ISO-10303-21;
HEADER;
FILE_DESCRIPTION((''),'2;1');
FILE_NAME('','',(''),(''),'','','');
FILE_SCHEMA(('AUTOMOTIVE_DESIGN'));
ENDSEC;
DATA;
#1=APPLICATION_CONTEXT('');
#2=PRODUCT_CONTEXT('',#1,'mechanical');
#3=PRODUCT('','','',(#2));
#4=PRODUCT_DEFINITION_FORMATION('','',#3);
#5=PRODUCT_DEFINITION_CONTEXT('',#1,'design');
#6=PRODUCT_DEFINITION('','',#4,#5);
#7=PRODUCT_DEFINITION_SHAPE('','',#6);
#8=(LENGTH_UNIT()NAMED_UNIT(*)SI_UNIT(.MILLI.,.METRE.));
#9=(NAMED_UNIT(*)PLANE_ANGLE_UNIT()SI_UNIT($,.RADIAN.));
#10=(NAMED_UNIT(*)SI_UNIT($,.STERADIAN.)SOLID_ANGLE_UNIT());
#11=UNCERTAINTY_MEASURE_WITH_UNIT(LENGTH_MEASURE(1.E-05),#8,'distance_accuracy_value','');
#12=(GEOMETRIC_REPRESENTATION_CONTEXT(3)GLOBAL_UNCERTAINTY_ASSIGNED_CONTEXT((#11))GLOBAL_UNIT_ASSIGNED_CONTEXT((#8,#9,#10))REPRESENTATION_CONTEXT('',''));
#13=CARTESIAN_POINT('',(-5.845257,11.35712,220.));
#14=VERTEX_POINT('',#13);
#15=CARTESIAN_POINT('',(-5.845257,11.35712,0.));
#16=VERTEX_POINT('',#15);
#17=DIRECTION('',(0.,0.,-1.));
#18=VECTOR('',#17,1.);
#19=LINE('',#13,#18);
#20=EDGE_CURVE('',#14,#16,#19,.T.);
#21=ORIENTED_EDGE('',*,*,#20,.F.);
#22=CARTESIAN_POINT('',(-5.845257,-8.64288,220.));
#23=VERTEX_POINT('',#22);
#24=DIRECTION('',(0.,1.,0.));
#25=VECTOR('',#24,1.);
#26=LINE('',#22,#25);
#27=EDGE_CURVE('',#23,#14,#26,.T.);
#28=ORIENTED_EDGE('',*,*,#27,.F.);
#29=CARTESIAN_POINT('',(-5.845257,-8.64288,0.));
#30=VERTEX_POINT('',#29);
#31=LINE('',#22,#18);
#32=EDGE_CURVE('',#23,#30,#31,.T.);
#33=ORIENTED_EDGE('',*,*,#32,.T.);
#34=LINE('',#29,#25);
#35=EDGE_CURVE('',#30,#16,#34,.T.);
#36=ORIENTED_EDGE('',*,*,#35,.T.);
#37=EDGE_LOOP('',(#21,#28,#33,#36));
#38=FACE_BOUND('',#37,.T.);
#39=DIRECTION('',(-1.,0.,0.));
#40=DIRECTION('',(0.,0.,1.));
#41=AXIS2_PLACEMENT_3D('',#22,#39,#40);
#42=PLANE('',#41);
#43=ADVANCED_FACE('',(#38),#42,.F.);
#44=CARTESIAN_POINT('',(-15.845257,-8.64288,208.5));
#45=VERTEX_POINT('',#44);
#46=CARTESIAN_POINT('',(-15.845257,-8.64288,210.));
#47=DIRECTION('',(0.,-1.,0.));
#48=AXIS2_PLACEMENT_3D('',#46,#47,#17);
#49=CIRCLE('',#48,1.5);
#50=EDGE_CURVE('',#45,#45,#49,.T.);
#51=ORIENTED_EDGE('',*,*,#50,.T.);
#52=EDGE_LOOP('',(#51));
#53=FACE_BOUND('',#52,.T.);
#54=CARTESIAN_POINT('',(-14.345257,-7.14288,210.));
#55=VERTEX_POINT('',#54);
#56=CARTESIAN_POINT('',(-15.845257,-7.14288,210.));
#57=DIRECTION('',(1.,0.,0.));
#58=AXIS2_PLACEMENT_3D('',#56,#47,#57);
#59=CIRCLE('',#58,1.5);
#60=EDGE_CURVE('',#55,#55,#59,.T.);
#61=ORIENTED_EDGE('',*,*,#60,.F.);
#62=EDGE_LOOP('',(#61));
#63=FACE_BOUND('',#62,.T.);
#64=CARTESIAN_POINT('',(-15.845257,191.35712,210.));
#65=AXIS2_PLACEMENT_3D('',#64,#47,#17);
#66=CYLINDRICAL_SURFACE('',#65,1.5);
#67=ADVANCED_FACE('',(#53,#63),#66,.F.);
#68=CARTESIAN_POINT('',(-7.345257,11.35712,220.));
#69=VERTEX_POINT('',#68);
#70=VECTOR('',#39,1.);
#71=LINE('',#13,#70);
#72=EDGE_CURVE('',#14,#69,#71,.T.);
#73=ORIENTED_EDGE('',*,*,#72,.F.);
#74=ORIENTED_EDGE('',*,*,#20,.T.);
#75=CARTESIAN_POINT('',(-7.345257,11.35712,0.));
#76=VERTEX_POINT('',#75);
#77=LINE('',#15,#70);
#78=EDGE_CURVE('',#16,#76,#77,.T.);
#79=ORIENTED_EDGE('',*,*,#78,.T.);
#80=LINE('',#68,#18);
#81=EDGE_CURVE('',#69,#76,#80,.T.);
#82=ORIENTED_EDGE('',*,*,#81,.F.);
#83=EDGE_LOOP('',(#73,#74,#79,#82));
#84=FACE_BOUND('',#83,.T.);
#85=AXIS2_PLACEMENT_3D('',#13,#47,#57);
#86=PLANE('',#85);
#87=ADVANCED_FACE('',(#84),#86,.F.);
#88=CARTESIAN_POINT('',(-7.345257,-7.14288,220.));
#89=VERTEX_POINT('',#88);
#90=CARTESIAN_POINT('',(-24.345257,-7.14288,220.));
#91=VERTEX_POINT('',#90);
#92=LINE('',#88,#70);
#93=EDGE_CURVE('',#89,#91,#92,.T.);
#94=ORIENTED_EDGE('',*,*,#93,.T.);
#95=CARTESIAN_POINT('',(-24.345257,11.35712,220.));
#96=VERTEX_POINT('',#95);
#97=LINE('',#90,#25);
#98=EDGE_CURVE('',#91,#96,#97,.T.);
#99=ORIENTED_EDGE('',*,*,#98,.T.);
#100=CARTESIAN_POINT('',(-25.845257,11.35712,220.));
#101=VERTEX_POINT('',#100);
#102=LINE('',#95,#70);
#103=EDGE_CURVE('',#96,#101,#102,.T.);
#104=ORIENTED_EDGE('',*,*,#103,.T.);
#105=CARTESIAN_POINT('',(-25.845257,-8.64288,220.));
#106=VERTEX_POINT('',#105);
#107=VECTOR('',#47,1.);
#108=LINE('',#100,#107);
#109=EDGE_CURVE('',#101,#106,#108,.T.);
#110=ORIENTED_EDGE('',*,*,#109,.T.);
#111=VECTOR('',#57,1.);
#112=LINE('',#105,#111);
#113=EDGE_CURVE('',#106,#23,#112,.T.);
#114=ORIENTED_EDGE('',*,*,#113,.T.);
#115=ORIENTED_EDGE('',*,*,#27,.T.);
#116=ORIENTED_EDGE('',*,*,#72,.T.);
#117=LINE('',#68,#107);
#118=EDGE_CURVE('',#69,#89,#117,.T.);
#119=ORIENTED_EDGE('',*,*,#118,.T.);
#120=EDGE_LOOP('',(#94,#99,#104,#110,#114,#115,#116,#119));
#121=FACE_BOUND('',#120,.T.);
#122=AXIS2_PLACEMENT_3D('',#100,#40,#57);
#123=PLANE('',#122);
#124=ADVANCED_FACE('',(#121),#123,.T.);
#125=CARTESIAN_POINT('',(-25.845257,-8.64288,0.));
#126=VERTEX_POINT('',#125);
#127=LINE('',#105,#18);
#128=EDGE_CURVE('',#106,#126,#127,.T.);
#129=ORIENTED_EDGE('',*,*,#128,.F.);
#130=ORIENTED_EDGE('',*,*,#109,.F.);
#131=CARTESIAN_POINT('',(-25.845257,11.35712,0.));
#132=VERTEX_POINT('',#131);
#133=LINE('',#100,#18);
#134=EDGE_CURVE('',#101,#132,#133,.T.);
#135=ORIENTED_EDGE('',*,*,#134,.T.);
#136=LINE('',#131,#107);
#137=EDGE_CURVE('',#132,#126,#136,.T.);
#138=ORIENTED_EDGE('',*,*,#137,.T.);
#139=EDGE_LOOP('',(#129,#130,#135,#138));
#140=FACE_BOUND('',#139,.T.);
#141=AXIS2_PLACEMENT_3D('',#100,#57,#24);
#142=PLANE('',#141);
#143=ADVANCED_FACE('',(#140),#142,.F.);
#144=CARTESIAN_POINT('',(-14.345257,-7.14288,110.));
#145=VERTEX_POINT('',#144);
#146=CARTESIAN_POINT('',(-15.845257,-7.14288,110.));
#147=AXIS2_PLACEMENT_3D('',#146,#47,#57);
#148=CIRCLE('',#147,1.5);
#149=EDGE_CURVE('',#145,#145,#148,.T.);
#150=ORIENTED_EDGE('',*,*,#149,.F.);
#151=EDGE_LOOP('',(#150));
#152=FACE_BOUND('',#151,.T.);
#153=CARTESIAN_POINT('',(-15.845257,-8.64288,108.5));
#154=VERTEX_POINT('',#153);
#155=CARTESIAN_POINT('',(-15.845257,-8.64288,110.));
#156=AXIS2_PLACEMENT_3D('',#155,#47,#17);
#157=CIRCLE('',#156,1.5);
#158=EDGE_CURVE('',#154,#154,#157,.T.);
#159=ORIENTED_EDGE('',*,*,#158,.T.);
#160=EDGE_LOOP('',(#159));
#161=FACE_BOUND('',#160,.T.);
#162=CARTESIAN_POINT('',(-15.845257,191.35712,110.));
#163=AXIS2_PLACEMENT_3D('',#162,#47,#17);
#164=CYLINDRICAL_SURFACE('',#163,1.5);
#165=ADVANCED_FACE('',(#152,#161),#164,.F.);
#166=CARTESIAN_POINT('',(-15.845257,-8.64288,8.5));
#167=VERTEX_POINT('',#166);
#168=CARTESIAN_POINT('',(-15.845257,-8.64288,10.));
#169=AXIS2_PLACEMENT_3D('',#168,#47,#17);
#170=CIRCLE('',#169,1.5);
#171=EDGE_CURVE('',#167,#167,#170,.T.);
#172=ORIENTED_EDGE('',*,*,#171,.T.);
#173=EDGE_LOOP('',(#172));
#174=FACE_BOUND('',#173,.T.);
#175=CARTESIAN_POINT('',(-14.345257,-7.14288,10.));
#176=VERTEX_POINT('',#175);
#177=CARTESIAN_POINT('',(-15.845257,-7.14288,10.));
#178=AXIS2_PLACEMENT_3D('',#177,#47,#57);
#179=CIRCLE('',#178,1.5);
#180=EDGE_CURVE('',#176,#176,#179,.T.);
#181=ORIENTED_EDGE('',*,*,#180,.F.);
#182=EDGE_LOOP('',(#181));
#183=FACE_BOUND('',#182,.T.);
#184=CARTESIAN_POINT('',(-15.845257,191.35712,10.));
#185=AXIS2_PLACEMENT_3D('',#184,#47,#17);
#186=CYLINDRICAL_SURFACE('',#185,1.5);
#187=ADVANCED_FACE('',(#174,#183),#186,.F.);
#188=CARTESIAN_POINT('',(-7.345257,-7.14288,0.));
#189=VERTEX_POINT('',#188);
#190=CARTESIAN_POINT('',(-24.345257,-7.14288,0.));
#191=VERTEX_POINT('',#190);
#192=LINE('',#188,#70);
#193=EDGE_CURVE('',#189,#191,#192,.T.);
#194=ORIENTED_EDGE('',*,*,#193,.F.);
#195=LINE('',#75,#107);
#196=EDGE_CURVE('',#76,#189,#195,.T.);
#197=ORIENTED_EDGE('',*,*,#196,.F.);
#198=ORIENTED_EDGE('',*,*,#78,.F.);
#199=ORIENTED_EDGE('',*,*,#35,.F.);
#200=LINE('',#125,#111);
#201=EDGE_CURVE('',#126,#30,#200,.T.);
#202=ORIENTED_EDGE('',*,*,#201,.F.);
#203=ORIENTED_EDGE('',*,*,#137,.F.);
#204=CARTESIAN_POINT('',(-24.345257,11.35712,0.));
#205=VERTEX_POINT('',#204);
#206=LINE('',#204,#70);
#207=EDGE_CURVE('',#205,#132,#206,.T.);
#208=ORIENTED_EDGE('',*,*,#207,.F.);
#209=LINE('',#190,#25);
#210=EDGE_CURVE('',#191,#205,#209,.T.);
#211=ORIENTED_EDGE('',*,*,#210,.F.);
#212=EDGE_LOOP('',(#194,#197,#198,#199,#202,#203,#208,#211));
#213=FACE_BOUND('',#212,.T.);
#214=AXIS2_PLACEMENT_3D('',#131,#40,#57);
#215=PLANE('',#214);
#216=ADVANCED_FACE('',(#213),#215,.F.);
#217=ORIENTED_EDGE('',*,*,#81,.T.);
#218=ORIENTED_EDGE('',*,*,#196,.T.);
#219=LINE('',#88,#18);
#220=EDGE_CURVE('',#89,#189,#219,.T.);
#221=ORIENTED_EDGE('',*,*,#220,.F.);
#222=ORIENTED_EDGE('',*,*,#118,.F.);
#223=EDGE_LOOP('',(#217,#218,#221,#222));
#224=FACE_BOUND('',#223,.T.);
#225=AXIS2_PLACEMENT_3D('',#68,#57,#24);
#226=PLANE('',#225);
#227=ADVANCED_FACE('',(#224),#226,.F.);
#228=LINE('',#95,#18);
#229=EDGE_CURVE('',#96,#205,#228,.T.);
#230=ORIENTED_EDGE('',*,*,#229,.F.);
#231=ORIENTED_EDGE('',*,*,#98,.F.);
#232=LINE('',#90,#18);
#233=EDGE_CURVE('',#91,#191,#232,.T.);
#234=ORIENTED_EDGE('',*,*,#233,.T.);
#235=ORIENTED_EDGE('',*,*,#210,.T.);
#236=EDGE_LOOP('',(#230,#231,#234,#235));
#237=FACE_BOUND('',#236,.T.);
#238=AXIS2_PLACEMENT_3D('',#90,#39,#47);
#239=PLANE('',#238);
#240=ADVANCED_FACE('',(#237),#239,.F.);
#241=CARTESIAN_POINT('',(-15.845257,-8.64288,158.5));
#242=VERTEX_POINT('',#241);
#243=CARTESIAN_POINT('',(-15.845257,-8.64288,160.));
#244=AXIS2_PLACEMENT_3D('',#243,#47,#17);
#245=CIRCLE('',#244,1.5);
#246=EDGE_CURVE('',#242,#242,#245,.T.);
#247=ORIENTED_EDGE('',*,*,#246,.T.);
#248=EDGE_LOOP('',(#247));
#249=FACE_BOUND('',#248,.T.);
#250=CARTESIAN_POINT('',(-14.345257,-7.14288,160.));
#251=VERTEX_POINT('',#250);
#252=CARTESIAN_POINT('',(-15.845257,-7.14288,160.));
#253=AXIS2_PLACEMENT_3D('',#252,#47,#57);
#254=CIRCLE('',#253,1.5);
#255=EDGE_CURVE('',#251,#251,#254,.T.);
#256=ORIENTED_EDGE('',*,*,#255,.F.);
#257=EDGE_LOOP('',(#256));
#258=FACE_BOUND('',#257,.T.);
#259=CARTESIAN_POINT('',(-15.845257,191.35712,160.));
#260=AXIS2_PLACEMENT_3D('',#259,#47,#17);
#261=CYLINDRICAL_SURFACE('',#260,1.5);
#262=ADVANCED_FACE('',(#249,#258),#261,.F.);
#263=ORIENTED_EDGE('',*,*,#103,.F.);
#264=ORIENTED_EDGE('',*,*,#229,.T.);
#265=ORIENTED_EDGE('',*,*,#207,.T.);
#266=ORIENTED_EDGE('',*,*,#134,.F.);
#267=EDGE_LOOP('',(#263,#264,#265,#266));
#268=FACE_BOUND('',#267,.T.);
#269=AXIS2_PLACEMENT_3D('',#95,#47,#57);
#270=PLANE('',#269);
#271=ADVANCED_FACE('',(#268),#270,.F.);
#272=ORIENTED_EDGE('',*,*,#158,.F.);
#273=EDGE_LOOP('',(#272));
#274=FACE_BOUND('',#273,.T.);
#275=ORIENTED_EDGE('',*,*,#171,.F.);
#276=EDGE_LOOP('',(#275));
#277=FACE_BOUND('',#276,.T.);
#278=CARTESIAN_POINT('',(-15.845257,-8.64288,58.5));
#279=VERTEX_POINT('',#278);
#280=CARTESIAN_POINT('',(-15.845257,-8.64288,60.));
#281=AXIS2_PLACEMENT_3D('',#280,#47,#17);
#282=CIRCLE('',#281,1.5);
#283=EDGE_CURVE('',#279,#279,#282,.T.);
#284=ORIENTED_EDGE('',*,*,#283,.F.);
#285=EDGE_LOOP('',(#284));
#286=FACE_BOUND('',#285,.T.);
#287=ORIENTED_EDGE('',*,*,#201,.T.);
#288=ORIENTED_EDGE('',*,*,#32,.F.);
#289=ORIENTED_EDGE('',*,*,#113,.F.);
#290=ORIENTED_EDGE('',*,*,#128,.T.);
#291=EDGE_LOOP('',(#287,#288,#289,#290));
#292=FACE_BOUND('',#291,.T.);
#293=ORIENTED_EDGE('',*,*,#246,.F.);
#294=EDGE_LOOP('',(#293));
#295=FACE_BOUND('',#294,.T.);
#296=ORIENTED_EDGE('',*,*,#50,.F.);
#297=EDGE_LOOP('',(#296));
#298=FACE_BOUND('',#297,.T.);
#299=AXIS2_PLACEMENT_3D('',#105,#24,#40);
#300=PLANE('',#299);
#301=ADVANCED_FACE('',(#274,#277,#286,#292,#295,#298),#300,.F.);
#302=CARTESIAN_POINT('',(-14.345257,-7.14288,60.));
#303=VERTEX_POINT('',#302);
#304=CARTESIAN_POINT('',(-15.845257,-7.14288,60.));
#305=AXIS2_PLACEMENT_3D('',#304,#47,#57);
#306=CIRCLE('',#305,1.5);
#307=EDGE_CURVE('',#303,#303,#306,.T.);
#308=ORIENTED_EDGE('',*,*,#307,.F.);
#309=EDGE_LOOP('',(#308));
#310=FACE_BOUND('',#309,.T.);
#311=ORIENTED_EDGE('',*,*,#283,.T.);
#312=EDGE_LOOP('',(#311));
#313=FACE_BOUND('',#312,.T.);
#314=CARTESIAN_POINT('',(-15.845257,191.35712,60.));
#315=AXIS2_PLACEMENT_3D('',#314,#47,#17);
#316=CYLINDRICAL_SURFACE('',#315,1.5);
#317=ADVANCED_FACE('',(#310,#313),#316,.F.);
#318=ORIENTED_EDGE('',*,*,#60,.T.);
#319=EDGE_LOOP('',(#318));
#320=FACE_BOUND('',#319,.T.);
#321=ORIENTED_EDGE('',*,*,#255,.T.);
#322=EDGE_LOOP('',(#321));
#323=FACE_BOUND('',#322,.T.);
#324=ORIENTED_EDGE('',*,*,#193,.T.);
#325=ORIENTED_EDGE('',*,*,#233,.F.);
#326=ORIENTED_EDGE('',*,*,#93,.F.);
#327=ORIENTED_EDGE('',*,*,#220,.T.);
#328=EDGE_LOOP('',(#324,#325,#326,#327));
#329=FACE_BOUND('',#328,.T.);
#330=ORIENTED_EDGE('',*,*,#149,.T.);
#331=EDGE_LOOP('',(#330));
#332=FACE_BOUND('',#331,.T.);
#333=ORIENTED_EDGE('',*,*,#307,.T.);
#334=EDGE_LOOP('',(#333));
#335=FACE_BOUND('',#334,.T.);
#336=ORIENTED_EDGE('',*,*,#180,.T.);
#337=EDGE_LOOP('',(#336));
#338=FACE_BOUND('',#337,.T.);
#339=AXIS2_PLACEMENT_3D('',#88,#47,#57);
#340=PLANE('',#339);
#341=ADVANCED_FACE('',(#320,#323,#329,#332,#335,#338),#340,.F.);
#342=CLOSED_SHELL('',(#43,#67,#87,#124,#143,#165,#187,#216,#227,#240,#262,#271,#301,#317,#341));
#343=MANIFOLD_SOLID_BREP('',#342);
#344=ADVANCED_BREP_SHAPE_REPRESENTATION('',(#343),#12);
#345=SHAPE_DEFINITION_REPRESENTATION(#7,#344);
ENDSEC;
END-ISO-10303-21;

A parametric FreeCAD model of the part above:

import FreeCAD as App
import Part
import Sketcher

V = App.Vector
Q = App.Units.Quantity

doc = App.newDocument("Part")
params = doc.addObject("Spreadsheet::Sheet", "Params")
for row, (alias, value) in enumerate([
    ("sketch1_width", "20 mm"),
    ("sketch1_width2", "17 mm"),
    ("sketch1_height", "18.5 mm"),
    ("pad1_length", "220 mm"),
    ("sketch2_diameter", "3 mm"),
    ("pocket1_length", "200 mm"),
], start=1):
    params.set(f"A{row}", alias)
    params.set(f"B{row}", "=" + value)
    params.setAlias(f"B{row}", alias)

body = doc.addObject("PartDesign::Body", "Body")

# Sketch on XY plane
sketch1 = doc.addObject("Sketcher::SketchObject", "Sketch")
body.addObject(sketch1)
sketch1.AttachmentSupport = (doc.XY_Plane, [""])
sketch1.MapMode = "FlatFace"
sketch1.addGeometry(Part.LineSegment(V(-25.845257, 11.35712, 0), V(-25.845257, -8.64288, 0)), False)
sketch1.addGeometry(Part.LineSegment(V(-25.845257, -8.64288, 0), V(-5.845257, -8.64288, 0)), False)
sketch1.addGeometry(Part.LineSegment(V(-5.845257, -8.64288, 0), V(-5.845257, 11.35712, 0)), False)
sketch1.addGeometry(Part.LineSegment(V(-5.845257, 11.35712, 0), V(-7.345257, 11.35712, 0)), False)
sketch1.addGeometry(Part.LineSegment(V(-7.345257, 11.35712, 0), V(-7.345257, -7.14288, 0)), False)
sketch1.addGeometry(Part.LineSegment(V(-7.345257, -7.14288, 0), V(-24.345257, -7.14288, 0)), False)
sketch1.addGeometry(Part.LineSegment(V(-24.345257, -7.14288, 0), V(-24.345257, 11.35712, 0)), False)
sketch1.addGeometry(Part.LineSegment(V(-24.345257, 11.35712, 0), V(-25.845257, 11.35712, 0)), False)
sketch1.addConstraint(Sketcher.Constraint("Coincident", 0, 2, 1, 1))
sketch1.addConstraint(Sketcher.Constraint("Coincident", 1, 2, 2, 1))
sketch1.addConstraint(Sketcher.Constraint("Coincident", 2, 2, 3, 1))
sketch1.addConstraint(Sketcher.Constraint("Coincident", 3, 2, 4, 1))
sketch1.addConstraint(Sketcher.Constraint("Coincident", 4, 2, 5, 1))
sketch1.addConstraint(Sketcher.Constraint("Coincident", 5, 2, 6, 1))
sketch1.addConstraint(Sketcher.Constraint("Coincident", 6, 2, 7, 1))
sketch1.addConstraint(Sketcher.Constraint("Coincident", 7, 2, 0, 1))
sketch1.addConstraint(Sketcher.Constraint("Vertical", 0))
sketch1.addConstraint(Sketcher.Constraint("Horizontal", 1))
sketch1.addConstraint(Sketcher.Constraint("Vertical", 2))
sketch1.addConstraint(Sketcher.Constraint("Horizontal", 3))
sketch1.addConstraint(Sketcher.Constraint("Vertical", 4))
sketch1.addConstraint(Sketcher.Constraint("Horizontal", 5))
sketch1.addConstraint(Sketcher.Constraint("Vertical", 6))
sketch1.addConstraint(Sketcher.Constraint("Horizontal", 7))
sketch1.addConstraint(Sketcher.Constraint("Horizontal", 3, 2, 6, 2))
sketch1.addConstraint(Sketcher.Constraint("Equal", 3, 7))
sketch1.addConstraint(Sketcher.Constraint("Equal", 1, 0))
sketch1.addConstraint(Sketcher.Constraint("DistanceX", 1, 1, 1, 2, Q("20 mm")))
sketch1.addConstraint(Sketcher.Constraint("DistanceX", 5, 2, 5, 1, Q("17 mm")))
sketch1.addConstraint(Sketcher.Constraint("DistanceY", 4, 2, 4, 1, Q("18.5 mm")))
sketch1.addConstraint(Sketcher.Constraint("DistanceY", 0, 2, -1, 1, Q("8.64288 mm")))
sketch1.addConstraint(Sketcher.Constraint("DistanceX", 0, 2, -1, 1, Q("25.845257 mm")))
sketch1.setExpression("Constraints[19]", "Params.sketch1_width")
sketch1.setExpression("Constraints[20]", "Params.sketch1_width2")
sketch1.setExpression("Constraints[21]", "Params.sketch1_height")
pad1 = doc.addObject("PartDesign::Pad", "Pad")
body.addObject(pad1)
pad1.Profile = sketch1
pad1.setExpression("Length", "Params.pad1_length")

# Sketch on XZ plane
sketch2 = doc.addObject("Sketcher::SketchObject", "Sketch001")
body.addObject(sketch2)
sketch2.AttachmentSupport = (doc.XZ_Plane, [""])
sketch2.MapMode = "FlatFace"
sketch2.AttachmentOffset = App.Placement(V(0, 0, 8.64288), App.Rotation())
sketch2.addGeometry(Part.Circle(V(-15.845257, 210, 0), V(0, 0, 1), 1.5), False)
sketch2.addGeometry(Part.Circle(V(-15.845257, 10, 0), V(0, 0, 1), 1.5), False)
sketch2.addGeometry(Part.Circle(V(-15.845257, 160, 0), V(0, 0, 1), 1.5), False)
sketch2.addGeometry(Part.Circle(V(-15.845257, 110, 0), V(0, 0, 1), 1.5), False)
sketch2.addGeometry(Part.Circle(V(-15.845257, 60, 0), V(0, 0, 1), 1.5), False)
sketch2.addConstraint(Sketcher.Constraint("Equal", 0, 1))
sketch2.addConstraint(Sketcher.Constraint("Equal", 1, 2))
sketch2.addConstraint(Sketcher.Constraint("Equal", 2, 3))
sketch2.addConstraint(Sketcher.Constraint("Equal", 3, 4))
sketch2.addConstraint(Sketcher.Constraint("Vertical", 0, 3, 1, 3))
sketch2.addConstraint(Sketcher.Constraint("Vertical", 1, 3, 2, 3))
sketch2.addConstraint(Sketcher.Constraint("Vertical", 2, 3, 3, 3))
sketch2.addConstraint(Sketcher.Constraint("Vertical", 3, 3, 4, 3))
sketch2.addConstraint(Sketcher.Constraint("Diameter", 0, Q("3 mm")))
sketch2.addConstraint(Sketcher.Constraint("DistanceY", -1, 1, 0, 3, Q("210 mm")))
sketch2.addConstraint(Sketcher.Constraint("DistanceY", -1, 1, 1, 3, Q("10 mm")))
sketch2.addConstraint(Sketcher.Constraint("DistanceY", -1, 1, 2, 3, Q("160 mm")))
sketch2.addConstraint(Sketcher.Constraint("DistanceY", -1, 1, 3, 3, Q("110 mm")))
sketch2.addConstraint(Sketcher.Constraint("DistanceY", -1, 1, 4, 3, Q("60 mm")))
sketch2.addConstraint(Sketcher.Constraint("DistanceX", 0, 3, -1, 1, Q("15.845257 mm")))
sketch2.setExpression("Constraints[8]", "Params.sketch2_diameter")
pocket1 = doc.addObject("PartDesign::Pocket", "Pocket")
body.addObject(pocket1)
pocket1.Profile = sketch2
pocket1.setExpression("Length", "Params.pocket1_length")

doc.recompute()
